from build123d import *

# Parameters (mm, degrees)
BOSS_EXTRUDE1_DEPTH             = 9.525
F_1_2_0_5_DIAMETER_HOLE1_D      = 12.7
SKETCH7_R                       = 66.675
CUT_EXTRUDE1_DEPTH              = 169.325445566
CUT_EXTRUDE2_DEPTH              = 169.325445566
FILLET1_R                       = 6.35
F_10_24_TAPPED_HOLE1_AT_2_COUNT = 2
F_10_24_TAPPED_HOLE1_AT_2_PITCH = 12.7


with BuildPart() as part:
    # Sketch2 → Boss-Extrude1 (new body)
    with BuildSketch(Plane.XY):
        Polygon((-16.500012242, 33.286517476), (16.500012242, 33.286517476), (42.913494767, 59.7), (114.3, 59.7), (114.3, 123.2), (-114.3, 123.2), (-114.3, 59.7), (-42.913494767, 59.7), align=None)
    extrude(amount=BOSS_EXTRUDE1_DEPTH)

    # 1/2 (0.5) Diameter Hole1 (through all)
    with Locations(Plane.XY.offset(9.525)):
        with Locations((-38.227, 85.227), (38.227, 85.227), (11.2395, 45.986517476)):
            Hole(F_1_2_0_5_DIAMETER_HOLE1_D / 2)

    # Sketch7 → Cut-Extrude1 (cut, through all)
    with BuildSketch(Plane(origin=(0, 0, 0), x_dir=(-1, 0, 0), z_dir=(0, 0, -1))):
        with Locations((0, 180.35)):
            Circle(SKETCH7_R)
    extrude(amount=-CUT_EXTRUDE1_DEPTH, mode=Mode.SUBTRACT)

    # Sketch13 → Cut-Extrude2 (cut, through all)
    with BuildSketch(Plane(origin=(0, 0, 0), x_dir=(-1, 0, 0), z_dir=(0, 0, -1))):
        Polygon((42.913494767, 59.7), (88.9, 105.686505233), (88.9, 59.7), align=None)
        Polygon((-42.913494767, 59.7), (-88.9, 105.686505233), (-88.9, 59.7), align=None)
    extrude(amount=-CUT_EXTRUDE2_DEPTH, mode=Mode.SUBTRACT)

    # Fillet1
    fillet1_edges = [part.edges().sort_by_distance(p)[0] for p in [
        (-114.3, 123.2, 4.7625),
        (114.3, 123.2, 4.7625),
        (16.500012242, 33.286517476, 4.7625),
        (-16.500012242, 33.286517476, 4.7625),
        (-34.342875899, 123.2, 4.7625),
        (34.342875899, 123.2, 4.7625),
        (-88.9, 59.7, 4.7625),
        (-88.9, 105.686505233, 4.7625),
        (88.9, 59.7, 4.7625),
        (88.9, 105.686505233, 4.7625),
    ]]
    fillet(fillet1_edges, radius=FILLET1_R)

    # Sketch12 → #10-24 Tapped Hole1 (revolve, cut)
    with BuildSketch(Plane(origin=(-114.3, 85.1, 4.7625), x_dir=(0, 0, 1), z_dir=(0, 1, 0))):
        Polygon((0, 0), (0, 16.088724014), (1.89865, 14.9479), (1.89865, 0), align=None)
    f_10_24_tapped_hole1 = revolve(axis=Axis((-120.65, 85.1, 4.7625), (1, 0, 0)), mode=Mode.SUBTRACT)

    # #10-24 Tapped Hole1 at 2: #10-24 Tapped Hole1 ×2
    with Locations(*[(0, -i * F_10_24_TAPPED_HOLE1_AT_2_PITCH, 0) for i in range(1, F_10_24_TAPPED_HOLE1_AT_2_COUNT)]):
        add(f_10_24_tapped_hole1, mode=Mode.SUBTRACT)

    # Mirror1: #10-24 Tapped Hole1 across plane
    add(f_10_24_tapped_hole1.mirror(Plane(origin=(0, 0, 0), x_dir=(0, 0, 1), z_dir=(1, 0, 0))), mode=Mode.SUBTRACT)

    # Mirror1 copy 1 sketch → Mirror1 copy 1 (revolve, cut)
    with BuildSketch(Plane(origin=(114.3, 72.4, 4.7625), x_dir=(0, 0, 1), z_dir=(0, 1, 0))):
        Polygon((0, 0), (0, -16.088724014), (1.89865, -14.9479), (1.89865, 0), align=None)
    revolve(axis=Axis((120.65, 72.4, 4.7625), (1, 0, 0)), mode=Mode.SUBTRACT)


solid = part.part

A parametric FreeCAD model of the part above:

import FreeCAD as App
import Part
import Sketcher
from FreeCAD import Vector
Q = App.Units.Quantity


def edges_at(feature, points):
    """Names of the edges that pass closest to the given points."""
    edges = feature.Shape.Edges
    near = lambda p: min(range(len(edges)), key=lambda i: edges[i].distToShape(Part.Vertex(*p))[0])
    return sorted({f"Edge{near(p) + 1}" for p in points})


def add_polygon(sketch, points):
    """Adds a closed chain of lines whose ends are joined by coincident constraints."""
    first, n = sketch.GeometryCount, len(points)
    for a, b in zip(points, points[1:] + points[:1]):
        sketch.addGeometry(Part.LineSegment(App.Vector(*a, 0), App.Vector(*b, 0)), False)
    for i in range(n):
        sketch.addConstraint(Sketcher.Constraint("Coincident", first + i, 2, first + (i + 1) % n, 1))

doc = App.newDocument("Part")
params = doc.addObject("Spreadsheet::Sheet", "Params")
for row, (alias, value) in enumerate([
    ("sketch1_width", "9 in"),
    ("sketch1_height", "2.5 in"),
    ("pad1_length", "0.375 in"),
    ("sketch2_diameter", "0.5 in"),
    ("hole_diameter", "0.5 in"),
    ("sketch3_diameter", "5.25 in"),
    ("fillet_radius", "0.25 in"),
    ("groove_angle", "360 deg"),
    ("linearpattern_pitch", "0.5 in"),
    ("groove2_angle", "360 deg"),
], start=1):
    params.set(f"A{row}", alias)
    params.set(f"B{row}", "=" + value)
    params.setAlias(f"B{row}", alias)

body = doc.addObject("PartDesign::Body", "Body")

sketch1 = body.newObject("Sketcher::SketchObject", "Sketch")
sketch1.AttachmentSupport = (doc.getObject("XY_Plane"), [""])
sketch1.MapMode = "FlatFace"
add_polygon(sketch1, [(-16.500012, 33.286517), (16.500012, 33.286517), (42.913495, 59.7), (114.3, 59.7), (114.3, 123.2), (-114.3, 123.2), (-114.3, 59.7), (-42.913495, 59.7)])
sketch1.addConstraint(Sketcher.Constraint("Horizontal", 0))
sketch1.addConstraint(Sketcher.Constraint("Horizontal", 2))
sketch1.addConstraint(Sketcher.Constraint("Vertical", 3))
sketch1.addConstraint(Sketcher.Constraint("Horizontal", 4))
sketch1.addConstraint(Sketcher.Constraint("Vertical", 5))
sketch1.addConstraint(Sketcher.Constraint("Horizontal", 6))
sketch1.addConstraint(Sketcher.Constraint("Symmetric", 2, 2, 5, 2, -2))
sketch1.addConstraint(Sketcher.Constraint("Perpendicular", 1, 7))
sketch1.addConstraint(Sketcher.Constraint("Equal", 2, 6))
sketch1.addConstraint(Sketcher.Constraint("Equal", 1, 7))
sketch1.addConstraint(Sketcher.Constraint("DistanceX", 4, 2, 4, 1, Q("9 in")))
sketch1.addConstraint(Sketcher.Constraint("DistanceY", 3, 1, 3, 2, Q("2.5 in")))
sketch1.addConstraint(Sketcher.Constraint("DistanceY", -1, 1, 1, 2, 59.7))
sketch1.addConstraint(Sketcher.Constraint("DistanceX", 0, 1, 0, 2, 33.000024))
sketch1.addConstraint(Sketcher.Constraint("DistanceX", 2, 1, 2, 2, 71.386505))
sketch1.setExpression("Constraints[18]", "Params.sketch1_width")
sketch1.setExpression("Constraints[19]", "Params.sketch1_height")
pad1 = body.newObject("PartDesign::Pad", "Pad")
pad1.Profile = sketch1
pad1.setExpression("Length", "Params.pad1_length")

sketch2 = body.newObject("Sketcher::SketchObject", "Sketch001")
sketch2.AttachmentSupport = (doc.getObject("XY_Plane"), [""])
sketch2.MapMode = "FlatFace"
sketch2.AttachmentOffset = App.Placement(Vector(0, 0, 0.375 * 25.4), App.Rotation())
sketch2.addGeometry(Part.Circle(Vector(-38.227, 85.227, 0), Vector(0, 0, 1), 6.35), False)
sketch2.addGeometry(Part.Circle(Vector(38.227, 85.227, 0), Vector(0, 0, 1), 6.35), False)
sketch2.addGeometry(Part.Circle(Vector(11.2395, 45.986517, 0), Vector(0, 0, 1), 6.35), False)
sketch2.addConstraint(Sketcher.Constraint("Equal", 0, 1))
sketch2.addConstraint(Sketcher.Constraint("Equal", 1, 2))
sketch2.addConstraint(Sketcher.Constraint("Symmetric", 0, 3, 1, 3, -2))
sketch2.addConstraint(Sketcher.Constraint("Diameter", 0, Q("0.5 in")))
sketch2.addConstraint(Sketcher.Constraint("DistanceX", 0, 3, 1, 3, Q("3.01 in")))
sketch2.addConstraint(Sketcher.Constraint("DistanceX", 2, 3, 1, 3, Q("1.0625 in")))
sketch2.addConstraint(Sketcher.Constraint("DistanceY", -1, 1, 0, 3, 85.227))
sketch2.addConstraint(Sketcher.Constraint("DistanceY", -1, 1, 2, 3, 45.986517))
sketch2.setExpression("Constraints[3]", "Params.sketch2_diameter")
doc.recompute()
hole = body.newObject("PartDesign::Hole", "Hole")
hole.Profile = sketch2
hole.ThreadType = "None"
hole.setExpression("Diameter", "Params.hole_diameter")
hole.DepthType = "ThroughAll"

sketch3 = body.newObject("Sketcher::SketchObject", "Sketch002")
sketch3.AttachmentSupport = (doc.getObject("XY_Plane"), [""])
sketch3.MapMode = "FlatFace"
sketch3.addGeometry(Part.Circle(Vector(0, 180.35, 0), Vector(0, 0, 1), 66.675), False)
sketch3.addConstraint(Sketcher.Constraint("PointOnObject", 0, 3, -2))
sketch3.addConstraint(Sketcher.Constraint("Diameter", 0, Q("5.25 in")))
sketch3.addConstraint(Sketcher.Constraint("DistanceY", -1, 1, 0, 3, 180.35))
sketch3.setExpression("Constraints[1]", "Params.sketch3_diameter")
pocket1 = body.newObject("PartDesign::Pocket", "Pocket")
pocket1.Profile = sketch3
pocket1.Type = "ThroughAll"
pocket1.Reversed = True

sketch4 = body.newObject("Sketcher::SketchObject", "Sketch003")
sketch4.AttachmentSupport = (doc.getObject("XY_Plane"), [""])
sketch4.MapMode = "FlatFace"
add_polygon(sketch4, [(-88.9, 105.686505), (-42.913495, 59.7), (-88.9, 59.7)])
add_polygon(sketch4, [(42.913495, 59.7), (88.9, 105.686505), (88.9, 59.7)])
sketch4.addConstraint(Sketcher.Constraint("Horizontal", 1))
sketch4.addConstraint(Sketcher.Constraint("Vertical", 2))
sketch4.addConstraint(Sketcher.Constraint("Vertical", 4))
sketch4.addConstraint(Sketcher.Constraint("Horizontal", 5))
sketch4.addConstraint(Sketcher.Constraint("Symmetric", 2, 2, 3, 2, -2))
sketch4.addConstraint(Sketcher.Constraint("Symmetric", 0, 2, 5, 2, -2))
sketch4.addConstraint(Sketcher.Constraint("Perpendicular", 0, 3))
sketch4.addConstraint(Sketcher.Constraint("DistanceX", 2, 2, 3, 2, Q("7 in")))
sketch4.addConstraint(Sketcher.Constraint("DistanceY", -1, 1, 0, 2, 59.7))
sketch4.addConstraint(Sketcher.Constraint("Distance", 0, 65.034739))
pocket2 = body.newObject("PartDesign::Pocket", "Pocket001")
pocket2.Profile = sketch4
pocket2.Type = "ThroughAll"
pocket2.Reversed = True
doc.recompute()

fillet = body.newObject("PartDesign::Fillet", "Fillet")
fillet.Base = (pocket2, edges_at(pocket2, [
    (-114.3, 123.2, 4.763),
    (114.3, 123.2, 4.763),
    (16.5, 33.287, 4.763),
    (-16.5, 33.287, 4.763),
    (-34.343, 123.2, 4.763),
    (34.343, 123.2, 4.763),
    (-88.9, 59.7, 4.763),
    (-88.9, 105.687, 4.763),
    (88.9, 59.7, 4.763),
    (88.9, 105.687, 4.763),
]))
fillet.setExpression("Radius", "Params.fillet_radius")

sketch5 = body.newObject("Sketcher::SketchObject", "Sketch004")
sketch5.AttachmentSupport = (doc.getObject("XZ_Plane"), [""])
sketch5.MapMode = "FlatFace"
sketch5.AttachmentOffset = App.Placement(Vector(0, 0, -85.1), App.Rotation())
add_polygon(sketch5, [(-98.211276, 4.7625), (-114.3, 4.7625), (-114.3, 6.66115), (-99.3521, 6.66115)])
sketch5.addGeometry(Part.LineSegment(Vector(-114.3, 4.7625, 0), Vector(-98.211276, 4.7625, 0)), True)
sketch5.addConstraint(Sketcher.Constraint("Horizontal", 0))
sketch5.addConstraint(Sketcher.Constraint("Vertical", 1))
sketch5.addConstraint(Sketcher.Constraint("Horizontal", 2))
sketch5.addConstraint(Sketcher.Constraint("Horizontal", 4))
sketch5.addConstraint(Sketcher.Constraint("Coincident", 4, 1, 0, 2))
sketch5.addConstraint(Sketcher.Constraint("Equal", 0, 4))
sketch5.addConstraint(Sketcher.Constraint("Angle", 3, Q("-59 deg")))
sketch5.addConstraint(Sketcher.Constraint("DistanceX", 0, 2, -1, 1, Q("4.5 in")))
sketch5.addConstraint(Sketcher.Constraint("DistanceX", 2, 1, 2, 2, Q("0.5885 in")))
sketch5.addConstraint(Sketcher.Constraint("DistanceY", -1, 1, 0, 2, Q("0.1875 in")))
sketch5.addConstraint(Sketcher.Constraint("DistanceY", 1, 1, 1, 2, 1.89865))
groove = body.newObject("PartDesign::Groove", "Groove")
groove.Profile = sketch5
groove.ReferenceAxis = (sketch5, ["Axis0"])
groove.setExpression("Angle", "Params.groove_angle")
doc.recompute()

linearpattern = body.newObject("PartDesign::LinearPattern", "LinearPattern")
linearpattern.Originals = [groove]
linearpattern.Direction = (doc.getObject("Y_Axis"), [""])
linearpattern.Mode = "offset"
linearpattern.setExpression("Offset", "Params.linearpattern_pitch")
linearpattern.Occurrences = 2
linearpattern.Reversed = True
body.Tip = linearpattern
doc.recompute()

mirrored = body.newObject("PartDesign::Mirrored", "Mirrored")
mirrored.Originals = [groove]
mirrored.MirrorPlane = (doc.getObject("YZ_Plane"), [""])
body.Tip = mirrored

sketch6 = body.newObject("Sketcher::SketchObject", "Sketch005")
sketch6.AttachmentSupport = (doc.getObject("XZ_Plane"), [""])
sketch6.MapMode = "FlatFace"
sketch6.AttachmentOffset = App.Placement(Vector(0, 0, -72.4), App.Rotation())
add_polygon(sketch6, [(114.3, 4.7625), (98.211276, 4.7625), (99.3521, 6.66115), (114.3, 6.66115)])
sketch6.addGeometry(Part.LineSegment(Vector(98.211276, 4.7625, 0), Vector(114.3, 4.7625, 0)), True)
sketch6.addConstraint(Sketcher.Constraint("Horizontal", 0))
sketch6.addConstraint(Sketcher.Constraint("Horizontal", 2))
sketch6.addConstraint(Sketcher.Constraint("Vertical", 3))
sketch6.addConstraint(Sketcher.Constraint("Horizontal", 4))
sketch6.addConstraint(Sketcher.Constraint("Coincident", 4, 1, 0, 2))
sketch6.addConstraint(Sketcher.Constraint("Vertical", 2, 2, 4, 2))
sketch6.addConstraint(Sketcher.Constraint("Angle", 1, Q("59 deg")))
sketch6.addConstraint(Sketcher.Constraint("DistanceX", -1, 1, 2, 2, Q("4.5 in")))
sketch6.addConstraint(Sketcher.Constraint("DistanceX", 2, 1, 2, 2, Q("0.5885 in")))
sketch6.addConstraint(Sketcher.Constraint("DistanceY", -1, 1, 0, 2, Q("0.1875 in")))
sketch6.addConstraint(Sketcher.Constraint("DistanceY", 3, 2, 3, 1, 1.89865))
groove2 = body.newObject("PartDesign::Groove", "Groove001")
groove2.Profile = sketch6
groove2.ReferenceAxis = (sketch6, ["Axis0"])
groove2.setExpression("Angle", "Params.groove2_angle")

doc.recompute()
